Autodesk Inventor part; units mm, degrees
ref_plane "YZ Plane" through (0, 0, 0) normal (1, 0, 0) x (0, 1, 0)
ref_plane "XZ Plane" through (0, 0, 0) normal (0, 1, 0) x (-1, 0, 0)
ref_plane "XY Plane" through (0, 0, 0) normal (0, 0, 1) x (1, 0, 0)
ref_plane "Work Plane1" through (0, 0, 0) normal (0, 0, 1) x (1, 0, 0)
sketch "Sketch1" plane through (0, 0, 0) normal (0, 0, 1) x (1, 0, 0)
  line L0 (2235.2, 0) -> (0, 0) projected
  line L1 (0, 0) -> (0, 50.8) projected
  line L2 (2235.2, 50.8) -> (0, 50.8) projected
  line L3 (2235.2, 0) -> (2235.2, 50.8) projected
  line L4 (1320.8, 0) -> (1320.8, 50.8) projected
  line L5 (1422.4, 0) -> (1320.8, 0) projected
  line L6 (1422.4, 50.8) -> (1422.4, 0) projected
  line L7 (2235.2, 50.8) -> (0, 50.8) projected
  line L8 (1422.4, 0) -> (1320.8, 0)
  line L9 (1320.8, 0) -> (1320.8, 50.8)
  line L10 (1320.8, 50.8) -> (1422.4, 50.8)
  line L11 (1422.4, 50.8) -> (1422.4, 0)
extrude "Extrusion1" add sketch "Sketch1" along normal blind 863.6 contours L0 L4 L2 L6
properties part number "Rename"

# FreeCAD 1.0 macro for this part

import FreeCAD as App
import Part
import Sketcher
from FreeCAD import Vector
Q = App.Units.Quantity


def add_polygon(sketch, points):
    """Adds a closed chain of lines whose ends are joined by coincident constraints."""
    first, n = sketch.GeometryCount, len(points)
    for a, b in zip(points, points[1:] + points[:1]):
        sketch.addGeometry(Part.LineSegment(App.Vector(*a, 0), App.Vector(*b, 0)), False)
    for i in range(n):
        sketch.addConstraint(Sketcher.Constraint("Coincident", first + i, 2, first + (i + 1) % n, 1))

doc = App.newDocument("Part")
body = doc.addObject("PartDesign::Body", "Body")

sketch1 = doc.addObject("Sketcher::SketchObject", "Sketch")
body.addObject(sketch1)
sketch1.AttachmentSupport = (doc.XY_Plane, [""])
sketch1.MapMode = "FlatFace"
add_polygon(sketch1, [(1321, 0), (1422, 0), (1422, 51), (1321, 51)])
sketch1.addConstraint([
    Sketcher.Constraint("Horizontal", 0),
    Sketcher.Constraint("Vertical", 1),
    Sketcher.Constraint("Horizontal", 2),
    Sketcher.Constraint("Vertical", 3),
    Sketcher.Constraint("PointOnObject", 0, 2, -1),
    Sketcher.Constraint("DistanceX", 0, 1, 0, 2, Q("4 in")),
    Sketcher.Constraint("DistanceY", 1, 1, 1, 2, Q("2 in")),
    Sketcher.Constraint("DistanceX", -1, 1, 0, 2, Q("56 in")),
])
pad1 = doc.addObject("PartDesign::Pad", "Pad")
body.addObject(pad1)
pad1.Profile = sketch1
pad1.Length = Q("34 in")

doc.recompute()
